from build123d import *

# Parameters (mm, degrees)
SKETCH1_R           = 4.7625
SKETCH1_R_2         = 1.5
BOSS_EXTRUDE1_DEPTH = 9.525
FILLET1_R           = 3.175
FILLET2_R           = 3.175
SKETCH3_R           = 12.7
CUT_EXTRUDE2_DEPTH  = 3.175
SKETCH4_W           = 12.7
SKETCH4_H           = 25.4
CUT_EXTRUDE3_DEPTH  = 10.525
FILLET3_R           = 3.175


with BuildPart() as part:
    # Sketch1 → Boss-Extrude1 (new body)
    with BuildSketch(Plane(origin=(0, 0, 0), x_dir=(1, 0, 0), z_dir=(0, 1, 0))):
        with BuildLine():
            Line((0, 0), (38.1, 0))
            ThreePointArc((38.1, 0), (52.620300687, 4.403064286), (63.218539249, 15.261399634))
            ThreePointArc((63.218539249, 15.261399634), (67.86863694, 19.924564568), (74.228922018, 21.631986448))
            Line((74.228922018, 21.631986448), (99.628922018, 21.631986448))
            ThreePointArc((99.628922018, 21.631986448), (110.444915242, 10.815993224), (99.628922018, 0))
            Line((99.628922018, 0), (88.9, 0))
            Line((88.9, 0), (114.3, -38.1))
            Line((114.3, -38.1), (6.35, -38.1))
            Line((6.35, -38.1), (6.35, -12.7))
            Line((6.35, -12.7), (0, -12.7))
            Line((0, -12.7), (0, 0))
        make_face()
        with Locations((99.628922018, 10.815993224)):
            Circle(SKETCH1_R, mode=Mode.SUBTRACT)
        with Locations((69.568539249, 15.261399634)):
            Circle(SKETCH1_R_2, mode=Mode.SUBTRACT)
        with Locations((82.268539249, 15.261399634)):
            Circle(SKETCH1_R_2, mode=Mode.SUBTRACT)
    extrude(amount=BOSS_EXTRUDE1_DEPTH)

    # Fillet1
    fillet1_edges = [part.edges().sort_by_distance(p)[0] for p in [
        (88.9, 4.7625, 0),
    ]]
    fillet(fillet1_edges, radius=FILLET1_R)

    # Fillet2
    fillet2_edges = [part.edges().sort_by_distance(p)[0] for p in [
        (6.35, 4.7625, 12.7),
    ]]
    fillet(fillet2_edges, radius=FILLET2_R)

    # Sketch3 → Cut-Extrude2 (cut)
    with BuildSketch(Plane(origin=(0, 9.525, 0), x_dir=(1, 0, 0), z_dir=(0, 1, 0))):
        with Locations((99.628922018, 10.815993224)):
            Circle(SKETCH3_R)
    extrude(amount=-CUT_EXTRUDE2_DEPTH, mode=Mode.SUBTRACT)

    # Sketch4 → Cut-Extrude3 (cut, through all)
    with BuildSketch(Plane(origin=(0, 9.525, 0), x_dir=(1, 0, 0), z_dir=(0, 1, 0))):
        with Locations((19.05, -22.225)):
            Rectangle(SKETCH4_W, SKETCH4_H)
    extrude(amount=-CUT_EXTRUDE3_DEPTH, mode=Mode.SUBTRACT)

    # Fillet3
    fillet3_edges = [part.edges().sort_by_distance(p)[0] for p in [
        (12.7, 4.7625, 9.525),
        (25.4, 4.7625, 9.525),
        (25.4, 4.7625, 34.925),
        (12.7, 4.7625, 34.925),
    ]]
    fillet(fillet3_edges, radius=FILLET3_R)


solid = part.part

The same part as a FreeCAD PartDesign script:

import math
import FreeCAD as App
import Part
import Sketcher
Q = App.Units.Quantity


def edges_at(feature, points):
    """Names of the edges that pass closest to the given points."""
    edges = feature.Shape.Edges
    near = lambda p: min(range(len(edges)), key=lambda i: edges[i].distToShape(Part.Vertex(*p))[0])
    return sorted({f"Edge{near(p) + 1}" for p in points})

doc = App.newDocument("Part")
body = doc.addObject("PartDesign::Body", "Body")

# Sketch on XZ plane
sketch1 = body.newObject("Sketcher::SketchObject", "Sketch")
sketch1.AttachmentSupport = (doc.getObject("XZ_Plane"), [""])
sketch1.MapMode = "FlatFace"
sketch1.addGeometry(Part.LineSegment(App.Vector(38.1, 0, 0), App.Vector(0, 0, 0)), False)
sketch1.addGeometry(Part.LineSegment(App.Vector(0, 0, 0), App.Vector(0, 12.7, 0)), False)
sketch1.addGeometry(Part.LineSegment(App.Vector(0, 12.7, 0), App.Vector(6.35, 12.7, 0)), False)
sketch1.addGeometry(Part.LineSegment(App.Vector(6.35, 12.7, 0), App.Vector(6.35, 38.1, 0)), False)
sketch1.addGeometry(Part.LineSegment(App.Vector(6.35, 38.1, 0), App.Vector(114.3, 38.1, 0)), False)
sketch1.addGeometry(Part.LineSegment(App.Vector(114.3, 38.1, 0), App.Vector(88.9, 0, 0)), False)
sketch1.addGeometry(Part.LineSegment(App.Vector(88.9, 0, 0), App.Vector(99.628922, 0, 0)), False)
sketch1.addGeometry(Part.ArcOfCircle(Part.Circle(App.Vector(99.628922, -10.815993, 0), App.Vector(0, 0, 1), 10.815993), math.radians(-90), math.radians(90)), False)
sketch1.addGeometry(Part.LineSegment(App.Vector(99.628922, -21.631986, 0), App.Vector(74.228922, -21.631986, 0)), False)
sketch1.addGeometry(Part.ArcOfCircle(Part.Circle(App.Vector(74.228922, -8.931986, 0), App.Vector(0, 0, 1), 12.7), math.radians(-150.107187), math.radians(-90)), False)
sketch1.addGeometry(Part.ArcOfCircle(Part.Circle(App.Vector(36.793621, -30.451991, 0), App.Vector(0, 0, 1), 30.48), math.radians(29.892813), math.radians(87.543538)), False)
sketch1.addGeometry(Part.Circle(App.Vector(99.628922, -10.815993, 0), App.Vector(0, 0, 1), 4.7625), False)
sketch1.addGeometry(Part.Circle(App.Vector(82.268539, -15.2614, 0), App.Vector(0, 0, 1), 1.5), False)
sketch1.addGeometry(Part.Circle(App.Vector(69.568539, -15.2614, 0), App.Vector(0, 0, 1), 1.5), False)
sketch1.addConstraint(Sketcher.Constraint("Coincident", 0, 2, 1, 1))
sketch1.addConstraint(Sketcher.Constraint("Coincident", 1, 2, 2, 1))
sketch1.addConstraint(Sketcher.Constraint("Coincident", 2, 2, 3, 1))
sketch1.addConstraint(Sketcher.Constraint("Coincident", 3, 2, 4, 1))
sketch1.addConstraint(Sketcher.Constraint("Coincident", 4, 2, 5, 1))
sketch1.addConstraint(Sketcher.Constraint("Coincident", 5, 2, 6, 1))
sketch1.addConstraint(Sketcher.Constraint("Coincident", 6, 2, 7, 2))
sketch1.addConstraint(Sketcher.Constraint("Coincident", 7, 1, 8, 1))
sketch1.addConstraint(Sketcher.Constraint("Coincident", 8, 2, 9, 2))
sketch1.addConstraint(Sketcher.Constraint("Coincident", 9, 1, 10, 1))
sketch1.addConstraint(Sketcher.Constraint("Coincident", 10, 2, 0, 1))
sketch1.addConstraint(Sketcher.Constraint("Horizontal", 0))
sketch1.addConstraint(Sketcher.Constraint("Vertical", 1))
sketch1.addConstraint(Sketcher.Constraint("Horizontal", 2))
sketch1.addConstraint(Sketcher.Constraint("Vertical", 3))
sketch1.addConstraint(Sketcher.Constraint("Horizontal", 4))
sketch1.addConstraint(Sketcher.Constraint("Horizontal", 6))
sketch1.addConstraint(Sketcher.Constraint("Horizontal", 8))
sketch1.addConstraint(Sketcher.Constraint("Coincident", 0, 2, -1, 1))
sketch1.addConstraint(Sketcher.Constraint("Coincident", 11, 3, 7, 3))
sketch1.addConstraint(Sketcher.Constraint("PointOnObject", 5, 2, -1))
sketch1.addConstraint(Sketcher.Constraint("Radius", 9, Q("0.5 in")))
sketch1.addConstraint(Sketcher.Constraint("Radius", 10, Q("1.2 in")))
sketch1.addConstraint(Sketcher.Constraint("DistanceX", 8, 2, 8, 1, Q("1 in")))
sketch1.addConstraint(Sketcher.Constraint("DistanceY", 3, 1, 3, 2, Q("1 in")))
sketch1.addConstraint(Sketcher.Constraint("Diameter", 11, Q("0.375 in")))
sketch1.addConstraint(Sketcher.Constraint("DistanceX", 0, 2, 0, 1, Q("1.5 in")))
sketch1.addConstraint(Sketcher.Constraint("DistanceY", 1, 1, 1, 2, Q("0.5 in")))
sketch1.addConstraint(Sketcher.Constraint("DistanceX", 9, 3, 7, 3, Q("1 in")))
sketch1.addConstraint(Sketcher.Constraint("DistanceX", 9, 3, 6, 2, Q("1 in")))
sketch1.addConstraint(Sketcher.Constraint("DistanceX", 2, 1, 2, 2, Q("0.25 in")))
sketch1.addConstraint(Sketcher.Constraint("DistanceX", 4, 1, 4, 2, Q("4.25 in")))
sketch1.addConstraint(Sketcher.Constraint("DistanceX", -1, 1, 5, 2, Q("3.5 in")))
sketch1.addConstraint(Sketcher.Constraint("DistanceX", 13, 3, 12, 3, Q("0.5 in")))
sketch1.addConstraint(Sketcher.Constraint("Diameter", 12, 3.0))
sketch1.addConstraint(Sketcher.Constraint("Diameter", 13, 3.0))
sketch1.addConstraint(Sketcher.Constraint("DistanceX", 9, 1, 13, 3, Q("0.25 in")))
sketch1.addConstraint(Sketcher.Constraint("Radius", 7, 10.815993))
sketch1.addConstraint(Sketcher.Constraint("DistanceY", 12, 3, -1, 1, 15.2614))
sketch1.addConstraint(Sketcher.Constraint("DistanceY", 13, 3, -1, 1, 15.2614))
sketch1.addConstraint(Sketcher.Constraint("DistanceY", 9, 1, -1, 1, 15.2614))
sketch1.addConstraint(Sketcher.Constraint("DistanceX", 10, 3, 9, 3, 37.435301))
sketch1.addConstraint(Sketcher.Constraint("DistanceX", -1, 1, 7, 1, 99.628922))
pad1 = body.newObject("PartDesign::Pad", "Pad")
pad1.Profile = sketch1
pad1.Length = Q("0.375 in")
pad1.Reversed = True
doc.recompute()

fillet = body.newObject("PartDesign::Fillet", "Fillet")
fillet.Base = (pad1, edges_at(pad1, [(88.9, 4.763, 0)]))
fillet.Radius = Q("0.125 in")
doc.recompute()

fillet2 = body.newObject("PartDesign::Fillet", "Fillet001")
fillet2.Base = (fillet, edges_at(fillet, [(6.35, 4.763, 12.7)]))
fillet2.Radius = Q("0.125 in")

# Sketch on XZ plane
sketch2 = body.newObject("Sketcher::SketchObject", "Sketch001")
sketch2.AttachmentSupport = (doc.getObject("XZ_Plane"), [""])
sketch2.MapMode = "FlatFace"
sketch2.AttachmentOffset = App.Placement(App.Vector(0, 0, -0.375 * 25.4), App.Rotation())
sketch2.addGeometry(Part.Circle(App.Vector(100, -11, 0), App.Vector(0, 0, 1), 13), False)
sketch2.addConstraint(Sketcher.Constraint("Diameter", 0, Q("1 in")))
sketch2.addConstraint(Sketcher.Constraint("DistanceX", -1, 1, 0, 3, 99.628922))
sketch2.addConstraint(Sketcher.Constraint("DistanceY", 0, 3, -1, 1, 10.815993))
pocket1 = body.newObject("PartDesign::Pocket", "Pocket")
pocket1.Profile = sketch2
pocket1.Length = Q("0.125 in")
pocket1.Reversed = True

# Sketch on XZ plane
sketch3 = body.newObject("Sketcher::SketchObject", "Sketch002")
sketch3.AttachmentSupport = (doc.getObject("XZ_Plane"), [""])
sketch3.MapMode = "FlatFace"
sketch3.AttachmentOffset = App.Placement(App.Vector(0, 0, -0.375 * 25.4), App.Rotation())
sketch3.addGeometry(Part.LineSegment(App.Vector(13, 10, 0), App.Vector(13, 35, 0)), False)
sketch3.addGeometry(Part.LineSegment(App.Vector(13, 35, 0), App.Vector(25, 35, 0)), False)
sketch3.addGeometry(Part.LineSegment(App.Vector(25, 35, 0), App.Vector(25, 10, 0)), False)
sketch3.addGeometry(Part.LineSegment(App.Vector(25, 10, 0), App.Vector(13, 10, 0)), False)
sketch3.addConstraint(Sketcher.Constraint("Coincident", 0, 2, 1, 1))
sketch3.addConstraint(Sketcher.Constraint("Coincident", 1, 2, 2, 1))
sketch3.addConstraint(Sketcher.Constraint("Coincident", 2, 2, 3, 1))
sketch3.addConstraint(Sketcher.Constraint("Coincident", 3, 2, 0, 1))
sketch3.addConstraint(Sketcher.Constraint("Vertical", 0))
sketch3.addConstraint(Sketcher.Constraint("Horizontal", 1))
sketch3.addConstraint(Sketcher.Constraint("Vertical", 2))
sketch3.addConstraint(Sketcher.Constraint("Horizontal", 3))
sketch3.addConstraint(Sketcher.Constraint("DistanceY", 0, 1, 0, 2, Q("1 in")))
sketch3.addConstraint(Sketcher.Constraint("DistanceX", 1, 1, 1, 2, Q("0.5 in")))
sketch3.addConstraint(Sketcher.Constraint("DistanceX", -1, 1, 1, 2, Q("1 in")))
sketch3.addConstraint(Sketcher.Constraint("DistanceY", -1, 1, 0, 2, Q("1.375 in")))
pocket2 = body.newObject("PartDesign::Pocket", "Pocket001")
pocket2.Profile = sketch3
pocket2.Type = "ThroughAll"
pocket2.Reversed = True
doc.recompute()

fillet3 = body.newObject("PartDesign::Fillet", "Fillet002")
fillet3.Base = (pocket2, edges_at(pocket2, [
    (12.7, 4.763, 9.525),
    (25.4, 4.763, 9.525),
    (25.4, 4.763, 34.925),
    (12.7, 4.763, 34.925),
]))
fillet3.Radius = Q("0.125 in")

doc.recompute()
